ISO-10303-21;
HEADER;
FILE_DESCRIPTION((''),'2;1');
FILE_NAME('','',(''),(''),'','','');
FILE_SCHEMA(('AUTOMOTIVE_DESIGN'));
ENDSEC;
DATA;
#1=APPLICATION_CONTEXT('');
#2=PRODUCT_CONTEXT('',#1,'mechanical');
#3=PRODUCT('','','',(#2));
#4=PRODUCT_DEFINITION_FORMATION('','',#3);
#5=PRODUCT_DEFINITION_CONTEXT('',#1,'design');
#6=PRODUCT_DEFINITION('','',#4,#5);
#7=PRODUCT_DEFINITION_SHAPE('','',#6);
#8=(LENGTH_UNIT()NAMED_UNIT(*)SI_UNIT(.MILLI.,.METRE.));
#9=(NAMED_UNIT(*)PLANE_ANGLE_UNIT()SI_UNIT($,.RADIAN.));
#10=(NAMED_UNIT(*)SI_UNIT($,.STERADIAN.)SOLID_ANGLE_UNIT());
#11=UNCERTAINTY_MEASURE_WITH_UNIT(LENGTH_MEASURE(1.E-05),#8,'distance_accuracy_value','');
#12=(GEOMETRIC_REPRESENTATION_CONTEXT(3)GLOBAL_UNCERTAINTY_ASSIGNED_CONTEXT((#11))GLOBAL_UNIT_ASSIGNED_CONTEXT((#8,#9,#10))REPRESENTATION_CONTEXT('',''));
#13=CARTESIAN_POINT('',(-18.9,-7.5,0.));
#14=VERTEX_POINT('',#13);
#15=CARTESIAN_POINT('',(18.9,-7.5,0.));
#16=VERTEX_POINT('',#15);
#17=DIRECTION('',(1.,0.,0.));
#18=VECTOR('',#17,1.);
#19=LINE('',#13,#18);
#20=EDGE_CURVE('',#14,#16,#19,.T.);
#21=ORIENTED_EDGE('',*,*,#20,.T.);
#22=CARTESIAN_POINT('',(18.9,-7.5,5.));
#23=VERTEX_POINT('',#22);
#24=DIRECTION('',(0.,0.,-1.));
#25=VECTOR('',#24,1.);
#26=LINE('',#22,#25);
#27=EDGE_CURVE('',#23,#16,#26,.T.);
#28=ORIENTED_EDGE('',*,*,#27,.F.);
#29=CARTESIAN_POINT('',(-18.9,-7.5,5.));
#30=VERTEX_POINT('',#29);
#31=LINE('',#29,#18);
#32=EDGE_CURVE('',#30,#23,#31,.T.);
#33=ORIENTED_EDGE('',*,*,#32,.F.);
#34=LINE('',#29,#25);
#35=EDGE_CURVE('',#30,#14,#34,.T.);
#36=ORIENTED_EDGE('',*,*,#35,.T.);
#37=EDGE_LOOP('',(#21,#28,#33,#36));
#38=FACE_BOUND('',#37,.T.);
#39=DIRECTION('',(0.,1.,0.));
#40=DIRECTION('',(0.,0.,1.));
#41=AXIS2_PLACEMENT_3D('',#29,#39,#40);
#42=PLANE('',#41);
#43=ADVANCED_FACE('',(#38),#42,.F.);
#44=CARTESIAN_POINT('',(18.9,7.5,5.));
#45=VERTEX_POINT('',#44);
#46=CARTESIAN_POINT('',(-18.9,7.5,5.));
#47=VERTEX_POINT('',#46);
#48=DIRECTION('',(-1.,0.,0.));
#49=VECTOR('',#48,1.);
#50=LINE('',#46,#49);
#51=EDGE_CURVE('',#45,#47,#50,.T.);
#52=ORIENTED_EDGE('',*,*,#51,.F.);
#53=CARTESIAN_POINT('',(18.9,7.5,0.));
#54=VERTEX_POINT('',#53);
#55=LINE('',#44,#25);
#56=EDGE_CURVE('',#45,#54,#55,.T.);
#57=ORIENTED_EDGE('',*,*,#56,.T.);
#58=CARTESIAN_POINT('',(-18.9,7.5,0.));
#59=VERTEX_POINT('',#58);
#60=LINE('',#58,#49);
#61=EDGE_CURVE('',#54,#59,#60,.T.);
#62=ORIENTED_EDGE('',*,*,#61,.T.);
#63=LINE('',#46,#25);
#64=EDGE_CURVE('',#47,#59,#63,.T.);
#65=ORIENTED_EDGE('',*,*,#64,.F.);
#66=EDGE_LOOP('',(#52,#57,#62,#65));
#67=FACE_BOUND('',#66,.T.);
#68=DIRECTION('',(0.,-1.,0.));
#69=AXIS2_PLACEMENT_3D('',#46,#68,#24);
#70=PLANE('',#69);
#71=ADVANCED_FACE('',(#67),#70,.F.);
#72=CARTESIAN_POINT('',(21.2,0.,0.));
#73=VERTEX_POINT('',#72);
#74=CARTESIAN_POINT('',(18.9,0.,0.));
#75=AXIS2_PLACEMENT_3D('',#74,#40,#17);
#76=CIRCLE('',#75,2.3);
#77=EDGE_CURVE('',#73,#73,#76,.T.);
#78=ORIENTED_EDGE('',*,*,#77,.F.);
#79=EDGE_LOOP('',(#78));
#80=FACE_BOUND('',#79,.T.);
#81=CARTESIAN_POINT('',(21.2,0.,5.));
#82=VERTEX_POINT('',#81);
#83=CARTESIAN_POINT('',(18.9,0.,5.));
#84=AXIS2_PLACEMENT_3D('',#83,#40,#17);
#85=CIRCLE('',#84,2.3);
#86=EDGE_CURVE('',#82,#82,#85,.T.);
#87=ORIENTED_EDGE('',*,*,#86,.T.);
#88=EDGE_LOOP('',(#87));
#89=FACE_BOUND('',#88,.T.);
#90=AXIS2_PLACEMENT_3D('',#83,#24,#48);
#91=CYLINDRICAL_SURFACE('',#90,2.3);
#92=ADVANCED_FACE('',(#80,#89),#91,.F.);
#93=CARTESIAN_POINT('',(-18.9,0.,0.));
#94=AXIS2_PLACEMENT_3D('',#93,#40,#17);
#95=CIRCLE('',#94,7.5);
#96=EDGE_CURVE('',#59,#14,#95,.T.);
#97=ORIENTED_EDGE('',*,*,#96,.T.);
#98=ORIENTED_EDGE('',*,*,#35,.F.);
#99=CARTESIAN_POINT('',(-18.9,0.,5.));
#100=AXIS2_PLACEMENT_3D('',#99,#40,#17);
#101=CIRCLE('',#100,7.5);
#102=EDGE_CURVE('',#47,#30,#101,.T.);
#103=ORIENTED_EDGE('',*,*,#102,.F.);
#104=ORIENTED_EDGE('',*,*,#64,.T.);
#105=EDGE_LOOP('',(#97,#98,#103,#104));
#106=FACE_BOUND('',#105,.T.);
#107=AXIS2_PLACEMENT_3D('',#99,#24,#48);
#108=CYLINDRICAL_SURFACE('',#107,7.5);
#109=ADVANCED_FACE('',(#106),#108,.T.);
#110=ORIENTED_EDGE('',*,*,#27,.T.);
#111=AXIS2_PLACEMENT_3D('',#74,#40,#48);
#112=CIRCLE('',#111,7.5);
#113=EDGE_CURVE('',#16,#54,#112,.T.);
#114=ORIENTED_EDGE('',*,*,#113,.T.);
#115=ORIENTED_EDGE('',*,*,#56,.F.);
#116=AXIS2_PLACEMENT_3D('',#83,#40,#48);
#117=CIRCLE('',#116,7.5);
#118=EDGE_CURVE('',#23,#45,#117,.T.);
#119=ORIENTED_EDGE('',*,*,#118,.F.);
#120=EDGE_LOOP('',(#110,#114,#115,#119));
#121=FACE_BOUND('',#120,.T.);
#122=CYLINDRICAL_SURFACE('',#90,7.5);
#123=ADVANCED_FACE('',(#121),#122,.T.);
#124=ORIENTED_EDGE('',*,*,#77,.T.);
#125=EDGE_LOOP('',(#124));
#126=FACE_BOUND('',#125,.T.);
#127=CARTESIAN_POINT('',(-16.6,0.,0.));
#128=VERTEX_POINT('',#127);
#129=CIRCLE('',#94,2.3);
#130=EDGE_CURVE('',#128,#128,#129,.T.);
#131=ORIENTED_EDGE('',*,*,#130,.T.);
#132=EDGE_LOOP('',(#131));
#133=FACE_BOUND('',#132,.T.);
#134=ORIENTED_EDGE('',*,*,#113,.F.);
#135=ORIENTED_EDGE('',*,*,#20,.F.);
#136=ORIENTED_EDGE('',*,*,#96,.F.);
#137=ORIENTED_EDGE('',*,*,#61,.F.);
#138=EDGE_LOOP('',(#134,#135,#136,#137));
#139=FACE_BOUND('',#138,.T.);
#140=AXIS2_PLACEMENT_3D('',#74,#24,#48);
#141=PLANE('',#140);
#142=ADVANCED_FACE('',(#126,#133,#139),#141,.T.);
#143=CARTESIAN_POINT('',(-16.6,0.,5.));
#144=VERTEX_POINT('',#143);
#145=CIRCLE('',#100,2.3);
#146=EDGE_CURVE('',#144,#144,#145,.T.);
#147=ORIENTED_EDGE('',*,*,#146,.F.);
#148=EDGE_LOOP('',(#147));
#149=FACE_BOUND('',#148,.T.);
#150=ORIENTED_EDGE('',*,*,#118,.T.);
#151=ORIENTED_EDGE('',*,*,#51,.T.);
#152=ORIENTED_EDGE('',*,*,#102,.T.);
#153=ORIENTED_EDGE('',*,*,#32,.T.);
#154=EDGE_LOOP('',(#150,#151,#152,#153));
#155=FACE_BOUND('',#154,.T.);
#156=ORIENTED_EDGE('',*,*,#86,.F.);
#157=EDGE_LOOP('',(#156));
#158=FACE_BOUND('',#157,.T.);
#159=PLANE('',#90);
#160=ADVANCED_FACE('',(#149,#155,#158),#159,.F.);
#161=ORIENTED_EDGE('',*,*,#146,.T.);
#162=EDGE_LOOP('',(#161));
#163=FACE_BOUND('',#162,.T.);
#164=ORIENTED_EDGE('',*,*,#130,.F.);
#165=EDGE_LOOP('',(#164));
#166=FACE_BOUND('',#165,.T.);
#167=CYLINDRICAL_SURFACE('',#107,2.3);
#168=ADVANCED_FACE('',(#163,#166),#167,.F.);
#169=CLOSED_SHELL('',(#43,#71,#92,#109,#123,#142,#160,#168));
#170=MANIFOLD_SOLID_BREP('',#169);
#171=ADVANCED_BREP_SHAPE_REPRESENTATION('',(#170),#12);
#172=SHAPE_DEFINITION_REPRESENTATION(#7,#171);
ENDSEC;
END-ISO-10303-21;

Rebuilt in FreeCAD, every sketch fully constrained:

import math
import FreeCAD as App
import Part
import Sketcher
from FreeCAD import Vector
Q = App.Units.Quantity

doc = App.newDocument("Part")
params = doc.addObject("Spreadsheet::Sheet", "Params")
for row, (alias, value) in enumerate([
    ("sketch1_diameter", "4.6 mm"),
    ("sketch1_radius", "7.5 mm"),
    ("sketch1_width", "37.8 mm"),
    ("pad1_length", "5 mm"),
], start=1):
    params.set(f"A{row}", alias)
    params.set(f"B{row}", "=" + value)
    params.setAlias(f"B{row}", alias)

body = doc.addObject("PartDesign::Body", "Body")

sketch1 = doc.addObject("Sketcher::SketchObject", "Sketch")
body.addObject(sketch1)
sketch1.AttachmentSupport = (doc.XY_Plane, [""])
sketch1.MapMode = "FlatFace"
sketch1.addGeometry([
    Part.LineSegment(Vector(18.9, 7.5, 0), Vector(-18.9, 7.5, 0)),
    Part.ArcOfCircle(Part.Circle(Vector(-18.9, 0, 0), Vector(0, 0, 1), 7.5), math.radians(90), math.radians(270)),
    Part.LineSegment(Vector(-18.9, -7.5, 0), Vector(18.9, -7.5, 0)),
    Part.ArcOfCircle(Part.Circle(Vector(18.9, 0, 0), Vector(0, 0, 1), 7.5), math.radians(-90), math.radians(90)),
    Part.Circle(Vector(18.9, 0, 0), Vector(0, 0, 1), 2.3),
    Part.Circle(Vector(-18.9, 0, 0), Vector(0, 0, 1), 2.3),
], False)
sketch1.addConstraint([
    Sketcher.Constraint("Tangent", 0, 2, 1, 1),
    Sketcher.Constraint("Tangent", 1, 2, 2, 1),
    Sketcher.Constraint("Tangent", 2, 2, 3, 1),
    Sketcher.Constraint("Tangent", 3, 2, 0, 1),
    Sketcher.Constraint("Horizontal", 0),
    Sketcher.Constraint("Horizontal", 2),
    Sketcher.Constraint("Coincident", 4, 3, 3, 3),
    Sketcher.Constraint("Coincident", 5, 3, 1, 3),
    Sketcher.Constraint("Equal", 4, 5),
    Sketcher.Constraint("Symmetric", 1, 3, 3, 3, -1, 1),
    Sketcher.Constraint("Diameter", 4, Q("4.6 mm")),
    Sketcher.Constraint("Radius", 1, Q("7.5 mm")),
    Sketcher.Constraint("DistanceX", 0, 2, 0, 1, Q("37.8 mm")),
])
sketch1.setExpression("Constraints[10]", "Params.sketch1_diameter")
sketch1.setExpression("Constraints[11]", "Params.sketch1_radius")
sketch1.setExpression("Constraints[12]", "Params.sketch1_width")
pad1 = doc.addObject("PartDesign::Pad", "Pad")
body.addObject(pad1)
pad1.Profile = sketch1
pad1.setExpression("Length", "Params.pad1_length")

doc.recompute()
